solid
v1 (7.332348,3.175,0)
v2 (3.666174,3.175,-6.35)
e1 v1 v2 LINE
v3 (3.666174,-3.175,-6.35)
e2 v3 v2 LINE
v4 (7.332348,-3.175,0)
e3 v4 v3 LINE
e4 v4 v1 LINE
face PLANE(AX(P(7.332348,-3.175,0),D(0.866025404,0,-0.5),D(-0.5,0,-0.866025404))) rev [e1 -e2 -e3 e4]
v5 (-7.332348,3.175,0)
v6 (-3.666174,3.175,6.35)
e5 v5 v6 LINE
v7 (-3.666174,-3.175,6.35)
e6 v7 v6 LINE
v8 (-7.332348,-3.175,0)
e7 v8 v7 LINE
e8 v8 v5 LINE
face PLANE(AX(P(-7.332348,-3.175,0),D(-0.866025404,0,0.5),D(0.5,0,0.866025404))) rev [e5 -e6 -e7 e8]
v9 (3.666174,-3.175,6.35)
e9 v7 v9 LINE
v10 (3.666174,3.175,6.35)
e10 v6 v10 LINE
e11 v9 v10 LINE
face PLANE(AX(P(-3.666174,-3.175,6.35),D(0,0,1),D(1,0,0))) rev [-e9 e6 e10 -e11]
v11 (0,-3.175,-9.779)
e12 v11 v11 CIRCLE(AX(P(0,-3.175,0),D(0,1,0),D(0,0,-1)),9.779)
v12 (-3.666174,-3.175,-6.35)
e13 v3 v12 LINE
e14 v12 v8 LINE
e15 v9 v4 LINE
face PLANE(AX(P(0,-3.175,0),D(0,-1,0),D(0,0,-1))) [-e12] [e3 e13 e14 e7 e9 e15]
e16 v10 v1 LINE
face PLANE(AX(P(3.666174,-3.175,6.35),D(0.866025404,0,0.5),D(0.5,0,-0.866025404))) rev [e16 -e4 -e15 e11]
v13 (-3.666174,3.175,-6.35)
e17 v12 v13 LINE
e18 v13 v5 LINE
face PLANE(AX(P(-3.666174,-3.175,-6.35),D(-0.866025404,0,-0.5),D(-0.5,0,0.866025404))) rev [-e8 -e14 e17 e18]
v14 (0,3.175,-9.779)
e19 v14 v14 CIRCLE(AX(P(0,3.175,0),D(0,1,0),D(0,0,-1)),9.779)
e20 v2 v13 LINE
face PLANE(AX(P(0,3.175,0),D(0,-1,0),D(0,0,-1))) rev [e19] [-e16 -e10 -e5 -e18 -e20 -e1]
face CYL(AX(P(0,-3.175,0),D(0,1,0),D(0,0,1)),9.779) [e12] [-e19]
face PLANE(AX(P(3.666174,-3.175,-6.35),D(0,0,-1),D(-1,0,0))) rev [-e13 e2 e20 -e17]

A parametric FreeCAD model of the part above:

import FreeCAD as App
import Part
import Sketcher

V = App.Vector
Q = App.Units.Quantity


def add_polygon(sketch, points):
    """Adds a closed chain of lines whose ends are joined by coincident constraints."""
    first, n = sketch.GeometryCount, len(points)
    for a, b in zip(points, points[1:] + points[:1]):
        sketch.addGeometry(Part.LineSegment(App.Vector(*a, 0), App.Vector(*b, 0)), False)
    for i in range(n):
        sketch.addConstraint(Sketcher.Constraint("Coincident", first + i, 2, first + (i + 1) % n, 1))

doc = App.newDocument("Part")
params = doc.addObject("Spreadsheet::Sheet", "Params")
for row, (alias, value) in enumerate([
    ("sketch1_diameter", "0.77 in"),
    ("pad1_length", "0.25 in"),
], start=1):
    params.set(f"A{row}", alias)
    params.set(f"B{row}", "=" + value)
    params.setAlias(f"B{row}", alias)

body = doc.addObject("PartDesign::Body", "Body")

# Sketch on XZ plane
sketch1 = body.newObject("Sketcher::SketchObject", "Sketch")
sketch1.AttachmentSupport = (doc.getObject("XZ_Plane"), [""])
sketch1.MapMode = "FlatFace"
sketch1.addGeometry(Part.Circle(V(0, 0, 0), V(0, 0, 1), 10), False)  # 0
add_polygon(sketch1, [(-7, 0), (-4, -6), (4, -6), (7, 0), (4, 6), (-4, 6)])  # lines 1-6
sketch1.addConstraint([
    Sketcher.Constraint("Horizontal", 2),
    Sketcher.Constraint("Horizontal", 5),
    Sketcher.Constraint("Coincident", 0, 3, -1, 1),
    Sketcher.Constraint("Symmetric", 1, 2, 4, 2, -1, 1),
    Sketcher.Constraint("Symmetric", 3, 2, 6, 2, -1, 1),
    Sketcher.Constraint("PointOnObject", 3, 2, -1),
    Sketcher.Constraint("Parallel", 3, 6),
    Sketcher.Constraint("Vertical", 2, 2, 4, 2),
    Sketcher.Constraint("Diameter", 0, Q("0.77 in")),
    Sketcher.Constraint("Angle", 1, Q("-60 deg")),
    Sketcher.Constraint("DistanceY", 2, 2, 4, 2, Q("0.5 in")),
    Sketcher.Constraint("DistanceX", 2, 1, 2, 2, 7.332348),
])
sketch1.setExpression("Constraints[14]", "Params.sketch1_diameter")
pad1 = body.newObject("PartDesign::Pad", "Pad")
pad1.Profile = sketch1
pad1.setExpression("Length", "Params.pad1_length")
pad1.Midplane = True

doc.recompute()
